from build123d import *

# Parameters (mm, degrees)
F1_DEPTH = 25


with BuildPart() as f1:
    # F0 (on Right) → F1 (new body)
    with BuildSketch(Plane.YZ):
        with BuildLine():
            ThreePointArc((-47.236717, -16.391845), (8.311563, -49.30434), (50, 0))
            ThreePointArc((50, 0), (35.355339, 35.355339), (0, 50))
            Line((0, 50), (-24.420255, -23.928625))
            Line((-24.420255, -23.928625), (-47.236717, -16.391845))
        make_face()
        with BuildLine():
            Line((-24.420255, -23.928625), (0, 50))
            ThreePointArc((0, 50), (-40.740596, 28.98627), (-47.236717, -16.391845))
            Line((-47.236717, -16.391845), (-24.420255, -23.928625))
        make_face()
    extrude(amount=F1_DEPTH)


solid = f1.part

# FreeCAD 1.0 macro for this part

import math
import FreeCAD as App
import Part
import Sketcher

V = App.Vector

doc = App.newDocument("Part")
params = doc.addObject("Spreadsheet::Sheet", "Params")
for row, (alias, value) in enumerate([
    ("sketch1_radius", "50 mm"),
    ("pad1_length", "25 mm"),
], start=1):
    params.set(f"A{row}", alias)
    params.set(f"B{row}", "=" + value)
    params.setAlias(f"B{row}", alias)

body = doc.addObject("PartDesign::Body", "Body")

sketch1 = doc.addObject("Sketcher::SketchObject", "Sketch")
body.addObject(sketch1)
sketch1.AttachmentSupport = (doc.YZ_Plane, [""])
sketch1.MapMode = "FlatFace"
sketch1.addGeometry([
    Part.ArcOfCircle(Part.Circle(V(0, 0, 0), V(0, 0, 1), 50), math.radians(-161), math.radians(0)),
    Part.ArcOfCircle(Part.Circle(V(0, 0, 0), V(0, 0, 1), 50), math.radians(0), math.radians(90)),
    Part.ArcOfCircle(Part.Circle(V(0, 0, 0), V(0, 0, 1), 50), math.radians(90), math.radians(199)),
], False)
sketch1.addConstraint([
    Sketcher.Constraint("Tangent", 0, 2, 1, 1),
    Sketcher.Constraint("Tangent", 1, 2, 2, 1),
    Sketcher.Constraint("Tangent", 2, 2, 0, 1),
    Sketcher.Constraint("Coincident", 0, 3, -1, 1),
    Sketcher.Constraint("PointOnObject", 0, 2, -1),
    Sketcher.Constraint("PointOnObject", 1, 2, -2),
    Sketcher.Constraint("Radius", 0, 50.0),
    Sketcher.Constraint("DistanceX", 2, 2, -1, 1, 47.236717),
])
sketch1.setExpression("Constraints[6]", "Params.sketch1_radius")
pad1 = doc.addObject("PartDesign::Pad", "Pad")
body.addObject(pad1)
pad1.Profile = sketch1
pad1.setExpression("Length", "Params.pad1_length")

doc.recompute()
